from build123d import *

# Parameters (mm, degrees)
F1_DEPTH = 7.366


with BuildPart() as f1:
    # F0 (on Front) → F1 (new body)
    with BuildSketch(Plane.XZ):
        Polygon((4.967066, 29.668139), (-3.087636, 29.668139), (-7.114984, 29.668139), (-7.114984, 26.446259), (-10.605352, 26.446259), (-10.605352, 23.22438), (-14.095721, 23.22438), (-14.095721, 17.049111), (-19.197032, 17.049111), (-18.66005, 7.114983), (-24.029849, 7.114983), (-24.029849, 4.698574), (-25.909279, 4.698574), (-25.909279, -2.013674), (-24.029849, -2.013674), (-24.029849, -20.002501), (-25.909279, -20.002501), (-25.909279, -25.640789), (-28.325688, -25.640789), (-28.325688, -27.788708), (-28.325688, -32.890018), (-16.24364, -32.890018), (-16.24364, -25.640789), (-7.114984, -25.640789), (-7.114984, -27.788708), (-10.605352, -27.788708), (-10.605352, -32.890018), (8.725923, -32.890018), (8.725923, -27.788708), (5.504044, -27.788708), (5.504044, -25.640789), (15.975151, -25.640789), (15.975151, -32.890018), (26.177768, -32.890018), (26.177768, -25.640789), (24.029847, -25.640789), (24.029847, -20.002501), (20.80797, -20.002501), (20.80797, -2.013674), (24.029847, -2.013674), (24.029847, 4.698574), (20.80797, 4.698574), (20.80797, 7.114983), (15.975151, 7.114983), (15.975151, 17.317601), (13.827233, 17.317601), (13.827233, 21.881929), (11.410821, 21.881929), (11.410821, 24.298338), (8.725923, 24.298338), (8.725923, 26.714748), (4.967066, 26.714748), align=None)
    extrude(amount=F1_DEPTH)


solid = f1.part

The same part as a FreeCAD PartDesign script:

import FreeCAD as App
import Part
import Sketcher
from FreeCAD import Vector
Q = App.Units.Quantity

doc = App.newDocument("Part")
body = doc.addObject("PartDesign::Body", "Body")

sketch1 = body.newObject("Sketcher::SketchObject", "Sketch")
sketch1.AttachmentSupport = (doc.getObject("XZ_Plane"), [""])
sketch1.MapMode = "FlatFace"
sketch1.addGeometry(Part.LineSegment(Vector(5, 29.7, 0), Vector(-7.1, 29.7, 0)), False)
sketch1.addGeometry(Part.LineSegment(Vector(-7.1, 29.7, 0), Vector(-7.1, 26.4, 0)), False)
sketch1.addGeometry(Part.LineSegment(Vector(-7.1, 26.4, 0), Vector(-10.6, 26.4, 0)), False)
sketch1.addGeometry(Part.LineSegment(Vector(-10.6, 26.4, 0), Vector(-10.6, 23.2, 0)), False)
sketch1.addGeometry(Part.LineSegment(Vector(-10.6, 23.2, 0), Vector(-14.1, 23.2, 0)), False)
sketch1.addGeometry(Part.LineSegment(Vector(-14.1, 23.2, 0), Vector(-14.1, 17, 0)), False)
sketch1.addGeometry(Part.LineSegment(Vector(-14.1, 17, 0), Vector(-19.2, 17, 0)), False)
sketch1.addGeometry(Part.LineSegment(Vector(-19.2, 17, 0), Vector(-18.7, 7.1, 0)), False)
sketch1.addGeometry(Part.LineSegment(Vector(-18.7, 7.1, 0), Vector(-24, 7.1, 0)), False)
sketch1.addGeometry(Part.LineSegment(Vector(-24, 7.1, 0), Vector(-24, 4.7, 0)), False)
sketch1.addGeometry(Part.LineSegment(Vector(-24, 4.7, 0), Vector(-25.9, 4.7, 0)), False)
sketch1.addGeometry(Part.LineSegment(Vector(-25.9, 4.7, 0), Vector(-25.9, -2, 0)), False)
sketch1.addGeometry(Part.LineSegment(Vector(-25.9, -2, 0), Vector(-24, -2, 0)), False)
sketch1.addGeometry(Part.LineSegment(Vector(-24, -2, 0), Vector(-24, -20, 0)), False)
sketch1.addGeometry(Part.LineSegment(Vector(-24, -20, 0), Vector(-25.9, -20, 0)), False)
sketch1.addGeometry(Part.LineSegment(Vector(-25.9, -20, 0), Vector(-25.9, -25.6, 0)), False)
sketch1.addGeometry(Part.LineSegment(Vector(-25.9, -25.6, 0), Vector(-28.3, -25.6, 0)), False)
sketch1.addGeometry(Part.LineSegment(Vector(-28.3, -25.6, 0), Vector(-28.3, -32.9, 0)), False)
sketch1.addGeometry(Part.LineSegment(Vector(-28.3, -32.9, 0), Vector(-16.2, -32.9, 0)), False)
sketch1.addGeometry(Part.LineSegment(Vector(-16.2, -32.9, 0), Vector(-16.2, -25.6, 0)), False)
sketch1.addGeometry(Part.LineSegment(Vector(-16.2, -25.6, 0), Vector(-7.1, -25.6, 0)), False)
sketch1.addGeometry(Part.LineSegment(Vector(-7.1, -25.6, 0), Vector(-7.1, -27.8, 0)), False)
sketch1.addGeometry(Part.LineSegment(Vector(-7.1, -27.8, 0), Vector(-10.6, -27.8, 0)), False)
sketch1.addGeometry(Part.LineSegment(Vector(-10.6, -27.8, 0), Vector(-10.6, -32.9, 0)), False)
sketch1.addGeometry(Part.LineSegment(Vector(-10.6, -32.9, 0), Vector(8.7, -32.9, 0)), False)
sketch1.addGeometry(Part.LineSegment(Vector(8.7, -32.9, 0), Vector(8.7, -27.8, 0)), False)
sketch1.addGeometry(Part.LineSegment(Vector(8.7, -27.8, 0), Vector(5.5, -27.8, 0)), False)
sketch1.addGeometry(Part.LineSegment(Vector(5.5, -27.8, 0), Vector(5.5, -25.6, 0)), False)
sketch1.addGeometry(Part.LineSegment(Vector(5.5, -25.6, 0), Vector(16, -25.6, 0)), False)
sketch1.addGeometry(Part.LineSegment(Vector(16, -25.6, 0), Vector(16, -32.9, 0)), False)
sketch1.addGeometry(Part.LineSegment(Vector(16, -32.9, 0), Vector(26.2, -32.9, 0)), False)
sketch1.addGeometry(Part.LineSegment(Vector(26.2, -32.9, 0), Vector(26.2, -25.6, 0)), False)
sketch1.addGeometry(Part.LineSegment(Vector(26.2, -25.6, 0), Vector(24, -25.6, 0)), False)
sketch1.addGeometry(Part.LineSegment(Vector(24, -25.6, 0), Vector(24, -20, 0)), False)
sketch1.addGeometry(Part.LineSegment(Vector(24, -20, 0), Vector(20.8, -20, 0)), False)
sketch1.addGeometry(Part.LineSegment(Vector(20.8, -20, 0), Vector(20.8, -2, 0)), False)
sketch1.addGeometry(Part.LineSegment(Vector(20.8, -2, 0), Vector(24, -2, 0)), False)
sketch1.addGeometry(Part.LineSegment(Vector(24, -2, 0), Vector(24, 4.7, 0)), False)
sketch1.addGeometry(Part.LineSegment(Vector(24, 4.7, 0), Vector(20.8, 4.7, 0)), False)
sketch1.addGeometry(Part.LineSegment(Vector(20.8, 4.7, 0), Vector(20.8, 7.1, 0)), False)
sketch1.addGeometry(Part.LineSegment(Vector(20.8, 7.1, 0), Vector(16, 7.1, 0)), False)
sketch1.addGeometry(Part.LineSegment(Vector(16, 7.1, 0), Vector(16, 17.3, 0)), False)
sketch1.addGeometry(Part.LineSegment(Vector(16, 17.3, 0), Vector(13.8, 17.3, 0)), False)
sketch1.addGeometry(Part.LineSegment(Vector(13.8, 17.3, 0), Vector(13.8, 21.9, 0)), False)
sketch1.addGeometry(Part.LineSegment(Vector(13.8, 21.9, 0), Vector(11.4, 21.9, 0)), False)
sketch1.addGeometry(Part.LineSegment(Vector(11.4, 21.9, 0), Vector(11.4, 24.3, 0)), False)
sketch1.addGeometry(Part.LineSegment(Vector(11.4, 24.3, 0), Vector(8.7, 24.3, 0)), False)
sketch1.addGeometry(Part.LineSegment(Vector(8.7, 24.3, 0), Vector(8.7, 26.7, 0)), False)
sketch1.addGeometry(Part.LineSegment(Vector(8.7, 26.7, 0), Vector(5, 26.7, 0)), False)
sketch1.addGeometry(Part.LineSegment(Vector(5, 26.7, 0), Vector(5, 29.7, 0)), False)
sketch1.addConstraint(Sketcher.Constraint("Coincident", 0, 2, 1, 1))
sketch1.addConstraint(Sketcher.Constraint("Coincident", 1, 2, 2, 1))
sketch1.addConstraint(Sketcher.Constraint("Coincident", 2, 2, 3, 1))
sketch1.addConstraint(Sketcher.Constraint("Coincident", 3, 2, 4, 1))
sketch1.addConstraint(Sketcher.Constraint("Coincident", 4, 2, 5, 1))
sketch1.addConstraint(Sketcher.Constraint("Coincident", 5, 2, 6, 1))
sketch1.addConstraint(Sketcher.Constraint("Coincident", 6, 2, 7, 1))
sketch1.addConstraint(Sketcher.Constraint("Coincident", 7, 2, 8, 1))
sketch1.addConstraint(Sketcher.Constraint("Coincident", 8, 2, 9, 1))
sketch1.addConstraint(Sketcher.Constraint("Coincident", 9, 2, 10, 1))
sketch1.addConstraint(Sketcher.Constraint("Coincident", 10, 2, 11, 1))
sketch1.addConstraint(Sketcher.Constraint("Coincident", 11, 2, 12, 1))
sketch1.addConstraint(Sketcher.Constraint("Coincident", 12, 2, 13, 1))
sketch1.addConstraint(Sketcher.Constraint("Coincident", 13, 2, 14, 1))
sketch1.addConstraint(Sketcher.Constraint("Coincident", 14, 2, 15, 1))
sketch1.addConstraint(Sketcher.Constraint("Coincident", 15, 2, 16, 1))
sketch1.addConstraint(Sketcher.Constraint("Coincident", 16, 2, 17, 1))
sketch1.addConstraint(Sketcher.Constraint("Coincident", 17, 2, 18, 1))
sketch1.addConstraint(Sketcher.Constraint("Coincident", 18, 2, 19, 1))
sketch1.addConstraint(Sketcher.Constraint("Coincident", 19, 2, 20, 1))
sketch1.addConstraint(Sketcher.Constraint("Coincident", 20, 2, 21, 1))
sketch1.addConstraint(Sketcher.Constraint("Coincident", 21, 2, 22, 1))
sketch1.addConstraint(Sketcher.Constraint("Coincident", 22, 2, 23, 1))
sketch1.addConstraint(Sketcher.Constraint("Coincident", 23, 2, 24, 1))
sketch1.addConstraint(Sketcher.Constraint("Coincident", 24, 2, 25, 1))
sketch1.addConstraint(Sketcher.Constraint("Coincident", 25, 2, 26, 1))
sketch1.addConstraint(Sketcher.Constraint("Coincident", 26, 2, 27, 1))
sketch1.addConstraint(Sketcher.Constraint("Coincident", 27, 2, 28, 1))
sketch1.addConstraint(Sketcher.Constraint("Coincident", 28, 2, 29, 1))
sketch1.addConstraint(Sketcher.Constraint("Coincident", 29, 2, 30, 1))
sketch1.addConstraint(Sketcher.Constraint("Coincident", 30, 2, 31, 1))
sketch1.addConstraint(Sketcher.Constraint("Coincident", 31, 2, 32, 1))
sketch1.addConstraint(Sketcher.Constraint("Coincident", 32, 2, 33, 1))
sketch1.addConstraint(Sketcher.Constraint("Coincident", 33, 2, 34, 1))
sketch1.addConstraint(Sketcher.Constraint("Coincident", 34, 2, 35, 1))
sketch1.addConstraint(Sketcher.Constraint("Coincident", 35, 2, 36, 1))
sketch1.addConstraint(Sketcher.Constraint("Coincident", 36, 2, 37, 1))
sketch1.addConstraint(Sketcher.Constraint("Coincident", 37, 2, 38, 1))
sketch1.addConstraint(Sketcher.Constraint("Coincident", 38, 2, 39, 1))
sketch1.addConstraint(Sketcher.Constraint("Coincident", 39, 2, 40, 1))
sketch1.addConstraint(Sketcher.Constraint("Coincident", 40, 2, 41, 1))
sketch1.addConstraint(Sketcher.Constraint("Coincident", 41, 2, 42, 1))
sketch1.addConstraint(Sketcher.Constraint("Coincident", 42, 2, 43, 1))
sketch1.addConstraint(Sketcher.Constraint("Coincident", 43, 2, 44, 1))
sketch1.addConstraint(Sketcher.Constraint("Coincident", 44, 2, 45, 1))
sketch1.addConstraint(Sketcher.Constraint("Coincident", 45, 2, 46, 1))
sketch1.addConstraint(Sketcher.Constraint("Coincident", 46, 2, 47, 1))
sketch1.addConstraint(Sketcher.Constraint("Coincident", 47, 2, 48, 1))
sketch1.addConstraint(Sketcher.Constraint("Coincident", 48, 2, 49, 1))
sketch1.addConstraint(Sketcher.Constraint("Coincident", 49, 2, 0, 1))
sketch1.addConstraint(Sketcher.Constraint("Horizontal", 0))
sketch1.addConstraint(Sketcher.Constraint("Vertical", 1))
sketch1.addConstraint(Sketcher.Constraint("Horizontal", 2))
sketch1.addConstraint(Sketcher.Constraint("Vertical", 3))
sketch1.addConstraint(Sketcher.Constraint("Horizontal", 4))
sketch1.addConstraint(Sketcher.Constraint("Vertical", 5))
sketch1.addConstraint(Sketcher.Constraint("Horizontal", 6))
sketch1.addConstraint(Sketcher.Constraint("Horizontal", 8))
sketch1.addConstraint(Sketcher.Constraint("Vertical", 9))
sketch1.addConstraint(Sketcher.Constraint("Horizontal", 10))
sketch1.addConstraint(Sketcher.Constraint("Vertical", 11))
sketch1.addConstraint(Sketcher.Constraint("Horizontal", 12))
sketch1.addConstraint(Sketcher.Constraint("Vertical", 13))
sketch1.addConstraint(Sketcher.Constraint("Horizontal", 14))
sketch1.addConstraint(Sketcher.Constraint("Vertical", 15))
sketch1.addConstraint(Sketcher.Constraint("Horizontal", 16))
sketch1.addConstraint(Sketcher.Constraint("Vertical", 17))
sketch1.addConstraint(Sketcher.Constraint("Horizontal", 18))
sketch1.addConstraint(Sketcher.Constraint("Vertical", 19))
sketch1.addConstraint(Sketcher.Constraint("Horizontal", 20))
sketch1.addConstraint(Sketcher.Constraint("Vertical", 21))
sketch1.addConstraint(Sketcher.Constraint("Horizontal", 22))
sketch1.addConstraint(Sketcher.Constraint("Vertical", 23))
sketch1.addConstraint(Sketcher.Constraint("Horizontal", 24))
sketch1.addConstraint(Sketcher.Constraint("Vertical", 25))
sketch1.addConstraint(Sketcher.Constraint("Horizontal", 26))
sketch1.addConstraint(Sketcher.Constraint("Vertical", 27))
sketch1.addConstraint(Sketcher.Constraint("Horizontal", 28))
sketch1.addConstraint(Sketcher.Constraint("Vertical", 29))
sketch1.addConstraint(Sketcher.Constraint("Horizontal", 30))
sketch1.addConstraint(Sketcher.Constraint("Vertical", 31))
sketch1.addConstraint(Sketcher.Constraint("Horizontal", 32))
sketch1.addConstraint(Sketcher.Constraint("Vertical", 33))
sketch1.addConstraint(Sketcher.Constraint("Horizontal", 34))
sketch1.addConstraint(Sketcher.Constraint("Vertical", 35))
sketch1.addConstraint(Sketcher.Constraint("Horizontal", 36))
sketch1.addConstraint(Sketcher.Constraint("Vertical", 37))
sketch1.addConstraint(Sketcher.Constraint("Horizontal", 38))
sketch1.addConstraint(Sketcher.Constraint("Vertical", 39))
sketch1.addConstraint(Sketcher.Constraint("Horizontal", 40))
sketch1.addConstraint(Sketcher.Constraint("Vertical", 41))
sketch1.addConstraint(Sketcher.Constraint("Horizontal", 42))
sketch1.addConstraint(Sketcher.Constraint("Vertical", 43))
sketch1.addConstraint(Sketcher.Constraint("Horizontal", 44))
sketch1.addConstraint(Sketcher.Constraint("Vertical", 45))
sketch1.addConstraint(Sketcher.Constraint("Horizontal", 46))
sketch1.addConstraint(Sketcher.Constraint("Vertical", 47))
sketch1.addConstraint(Sketcher.Constraint("Horizontal", 48))
sketch1.addConstraint(Sketcher.Constraint("Vertical", 49))
sketch1.addConstraint(Sketcher.Constraint("Symmetric", 13, 2, 33, 2, -2))
sketch1.addConstraint(Sketcher.Constraint("Symmetric", 12, 2, 36, 2, -2))
sketch1.addConstraint(Sketcher.Constraint("Symmetric", 9, 2, 37, 2, -2))
sketch1.addConstraint(Sketcher.Constraint("Horizontal", 16, 2, 19, 2))
sketch1.addConstraint(Sketcher.Constraint("Horizontal", 18, 2, 23, 2))
sketch1.addConstraint(Sketcher.Constraint("Horizontal", 22, 2, 25, 2))
sketch1.addConstraint(Sketcher.Constraint("Horizontal", 20, 2, 27, 2))
sketch1.addConstraint(Sketcher.Constraint("Horizontal", 24, 2, 29, 2))
sketch1.addConstraint(Sketcher.Constraint("Horizontal", 28, 2, 31, 2))
sketch1.addConstraint(Sketcher.Constraint("Horizontal", 8, 2, 39, 2))
sketch1.addConstraint(Sketcher.Constraint("Vertical", 11, 2, 14, 2))
sketch1.addConstraint(Sketcher.Constraint("Vertical", 1, 2, 20, 2))
sketch1.addConstraint(Sketcher.Constraint("Vertical", 3, 2, 22, 2))
sketch1.addConstraint(Sketcher.Constraint("Vertical", 35, 2, 38, 2))
sketch1.addConstraint(Sketcher.Constraint("Vertical", 29, 2, 40, 2))
sketch1.addConstraint(Sketcher.Constraint("Vertical", 25, 2, 46, 2))
sketch1.addConstraint(Sketcher.Constraint("Equal", 2, 4))
sketch1.addConstraint(Sketcher.Constraint("Equal", 0, 18))
sketch1.addConstraint(Sketcher.Constraint("Equal", 26, 1))
sketch1.addConstraint(Sketcher.Constraint("Equal", 1, 3))
sketch1.addConstraint(Sketcher.Constraint("Equal", 16, 9))
sketch1.addConstraint(Sketcher.Constraint("Equal", 42, 21))
sketch1.addConstraint(Sketcher.Constraint("Equal", 6, 23))
sketch1.addConstraint(Sketcher.Constraint("Equal", 30, 41))
sketch1.addConstraint(Sketcher.Constraint("Equal", 39, 45))
sketch1.addConstraint(Sketcher.Constraint("Equal", 45, 47))
sketch1.addConstraint(Sketcher.Constraint("DistanceX", 8, 2, 8, 1, Q("5.369799 mm")))
sketch1.addConstraint(Sketcher.Constraint("DistanceX", 46, 2, 46, 1, Q("2.684898 mm")))
sketch1.addConstraint(Sketcher.Constraint("DistanceY", 13, 2, -1, 1, Q("0.7875 in")))
sketch1.addConstraint(Sketcher.Constraint("DistanceX", 0, 2, 0, 1, Q("12.08205 mm")))
sketch1.addConstraint(Sketcher.Constraint("DistanceX", 2, 2, 2, 1, Q("3.490368 mm")))
sketch1.addConstraint(Sketcher.Constraint("DistanceX", 6, 2, 6, 1, Q("5.101311 mm")))
sketch1.addConstraint(Sketcher.Constraint("DistanceX", 10, 2, 10, 1, Q("1.87943 mm")))
sketch1.addConstraint(Sketcher.Constraint("DistanceX", 16, 2, 16, 1, Q("2.416409 mm")))
sketch1.addConstraint(Sketcher.Constraint("DistanceX", 26, 2, 26, 1, Q("3.221879 mm")))
sketch1.addConstraint(Sketcher.Constraint("DistanceX", 32, 2, 32, 1, Q("2.147921 mm")))
sketch1.addConstraint(Sketcher.Constraint("DistanceX", 40, 2, 40, 1, Q("4.832819 mm")))
sketch1.addConstraint(Sketcher.Constraint("DistanceX", 42, 2, 42, 1, Q("2.147918 mm")))
sketch1.addConstraint(Sketcher.Constraint("DistanceX", 44, 2, 44, 1, Q("2.416412 mm")))
sketch1.addConstraint(Sketcher.Constraint("DistanceY", 5, 2, 5, 1, Q("6.175269 mm")))
sketch1.addConstraint(Sketcher.Constraint("DistanceY", 15, 2, 15, 1, Q("5.638288 mm")))
sketch1.addConstraint(Sketcher.Constraint("DistanceY", 41, 1, 41, 2, Q("10.202618 mm")))
sketch1.addConstraint(Sketcher.Constraint("DistanceY", 49, 1, 49, 2, Q("2.953391 mm")))
sketch1.addConstraint(Sketcher.Constraint("DistanceY", -1, 1, 41, 2, Q("17.317601 mm")))
sketch1.addConstraint(Sketcher.Constraint("Distance", 7, Q("9.94863 mm")))
sketch1.addConstraint(Sketcher.Constraint("DistanceX", 20, 1, 20, 2, Q("9.128656 mm")))
sketch1.addConstraint(Sketcher.Constraint("DistanceX", 24, 1, 24, 2, Q("19.331275 mm")))
sketch1.addConstraint(Sketcher.Constraint("DistanceY", 11, 2, 11, 1, Q("6.712248 mm")))
pad1 = body.newObject("PartDesign::Pad", "Pad")
pad1.Profile = sketch1
pad1.Length = Q("0.29 in")

doc.recompute()
